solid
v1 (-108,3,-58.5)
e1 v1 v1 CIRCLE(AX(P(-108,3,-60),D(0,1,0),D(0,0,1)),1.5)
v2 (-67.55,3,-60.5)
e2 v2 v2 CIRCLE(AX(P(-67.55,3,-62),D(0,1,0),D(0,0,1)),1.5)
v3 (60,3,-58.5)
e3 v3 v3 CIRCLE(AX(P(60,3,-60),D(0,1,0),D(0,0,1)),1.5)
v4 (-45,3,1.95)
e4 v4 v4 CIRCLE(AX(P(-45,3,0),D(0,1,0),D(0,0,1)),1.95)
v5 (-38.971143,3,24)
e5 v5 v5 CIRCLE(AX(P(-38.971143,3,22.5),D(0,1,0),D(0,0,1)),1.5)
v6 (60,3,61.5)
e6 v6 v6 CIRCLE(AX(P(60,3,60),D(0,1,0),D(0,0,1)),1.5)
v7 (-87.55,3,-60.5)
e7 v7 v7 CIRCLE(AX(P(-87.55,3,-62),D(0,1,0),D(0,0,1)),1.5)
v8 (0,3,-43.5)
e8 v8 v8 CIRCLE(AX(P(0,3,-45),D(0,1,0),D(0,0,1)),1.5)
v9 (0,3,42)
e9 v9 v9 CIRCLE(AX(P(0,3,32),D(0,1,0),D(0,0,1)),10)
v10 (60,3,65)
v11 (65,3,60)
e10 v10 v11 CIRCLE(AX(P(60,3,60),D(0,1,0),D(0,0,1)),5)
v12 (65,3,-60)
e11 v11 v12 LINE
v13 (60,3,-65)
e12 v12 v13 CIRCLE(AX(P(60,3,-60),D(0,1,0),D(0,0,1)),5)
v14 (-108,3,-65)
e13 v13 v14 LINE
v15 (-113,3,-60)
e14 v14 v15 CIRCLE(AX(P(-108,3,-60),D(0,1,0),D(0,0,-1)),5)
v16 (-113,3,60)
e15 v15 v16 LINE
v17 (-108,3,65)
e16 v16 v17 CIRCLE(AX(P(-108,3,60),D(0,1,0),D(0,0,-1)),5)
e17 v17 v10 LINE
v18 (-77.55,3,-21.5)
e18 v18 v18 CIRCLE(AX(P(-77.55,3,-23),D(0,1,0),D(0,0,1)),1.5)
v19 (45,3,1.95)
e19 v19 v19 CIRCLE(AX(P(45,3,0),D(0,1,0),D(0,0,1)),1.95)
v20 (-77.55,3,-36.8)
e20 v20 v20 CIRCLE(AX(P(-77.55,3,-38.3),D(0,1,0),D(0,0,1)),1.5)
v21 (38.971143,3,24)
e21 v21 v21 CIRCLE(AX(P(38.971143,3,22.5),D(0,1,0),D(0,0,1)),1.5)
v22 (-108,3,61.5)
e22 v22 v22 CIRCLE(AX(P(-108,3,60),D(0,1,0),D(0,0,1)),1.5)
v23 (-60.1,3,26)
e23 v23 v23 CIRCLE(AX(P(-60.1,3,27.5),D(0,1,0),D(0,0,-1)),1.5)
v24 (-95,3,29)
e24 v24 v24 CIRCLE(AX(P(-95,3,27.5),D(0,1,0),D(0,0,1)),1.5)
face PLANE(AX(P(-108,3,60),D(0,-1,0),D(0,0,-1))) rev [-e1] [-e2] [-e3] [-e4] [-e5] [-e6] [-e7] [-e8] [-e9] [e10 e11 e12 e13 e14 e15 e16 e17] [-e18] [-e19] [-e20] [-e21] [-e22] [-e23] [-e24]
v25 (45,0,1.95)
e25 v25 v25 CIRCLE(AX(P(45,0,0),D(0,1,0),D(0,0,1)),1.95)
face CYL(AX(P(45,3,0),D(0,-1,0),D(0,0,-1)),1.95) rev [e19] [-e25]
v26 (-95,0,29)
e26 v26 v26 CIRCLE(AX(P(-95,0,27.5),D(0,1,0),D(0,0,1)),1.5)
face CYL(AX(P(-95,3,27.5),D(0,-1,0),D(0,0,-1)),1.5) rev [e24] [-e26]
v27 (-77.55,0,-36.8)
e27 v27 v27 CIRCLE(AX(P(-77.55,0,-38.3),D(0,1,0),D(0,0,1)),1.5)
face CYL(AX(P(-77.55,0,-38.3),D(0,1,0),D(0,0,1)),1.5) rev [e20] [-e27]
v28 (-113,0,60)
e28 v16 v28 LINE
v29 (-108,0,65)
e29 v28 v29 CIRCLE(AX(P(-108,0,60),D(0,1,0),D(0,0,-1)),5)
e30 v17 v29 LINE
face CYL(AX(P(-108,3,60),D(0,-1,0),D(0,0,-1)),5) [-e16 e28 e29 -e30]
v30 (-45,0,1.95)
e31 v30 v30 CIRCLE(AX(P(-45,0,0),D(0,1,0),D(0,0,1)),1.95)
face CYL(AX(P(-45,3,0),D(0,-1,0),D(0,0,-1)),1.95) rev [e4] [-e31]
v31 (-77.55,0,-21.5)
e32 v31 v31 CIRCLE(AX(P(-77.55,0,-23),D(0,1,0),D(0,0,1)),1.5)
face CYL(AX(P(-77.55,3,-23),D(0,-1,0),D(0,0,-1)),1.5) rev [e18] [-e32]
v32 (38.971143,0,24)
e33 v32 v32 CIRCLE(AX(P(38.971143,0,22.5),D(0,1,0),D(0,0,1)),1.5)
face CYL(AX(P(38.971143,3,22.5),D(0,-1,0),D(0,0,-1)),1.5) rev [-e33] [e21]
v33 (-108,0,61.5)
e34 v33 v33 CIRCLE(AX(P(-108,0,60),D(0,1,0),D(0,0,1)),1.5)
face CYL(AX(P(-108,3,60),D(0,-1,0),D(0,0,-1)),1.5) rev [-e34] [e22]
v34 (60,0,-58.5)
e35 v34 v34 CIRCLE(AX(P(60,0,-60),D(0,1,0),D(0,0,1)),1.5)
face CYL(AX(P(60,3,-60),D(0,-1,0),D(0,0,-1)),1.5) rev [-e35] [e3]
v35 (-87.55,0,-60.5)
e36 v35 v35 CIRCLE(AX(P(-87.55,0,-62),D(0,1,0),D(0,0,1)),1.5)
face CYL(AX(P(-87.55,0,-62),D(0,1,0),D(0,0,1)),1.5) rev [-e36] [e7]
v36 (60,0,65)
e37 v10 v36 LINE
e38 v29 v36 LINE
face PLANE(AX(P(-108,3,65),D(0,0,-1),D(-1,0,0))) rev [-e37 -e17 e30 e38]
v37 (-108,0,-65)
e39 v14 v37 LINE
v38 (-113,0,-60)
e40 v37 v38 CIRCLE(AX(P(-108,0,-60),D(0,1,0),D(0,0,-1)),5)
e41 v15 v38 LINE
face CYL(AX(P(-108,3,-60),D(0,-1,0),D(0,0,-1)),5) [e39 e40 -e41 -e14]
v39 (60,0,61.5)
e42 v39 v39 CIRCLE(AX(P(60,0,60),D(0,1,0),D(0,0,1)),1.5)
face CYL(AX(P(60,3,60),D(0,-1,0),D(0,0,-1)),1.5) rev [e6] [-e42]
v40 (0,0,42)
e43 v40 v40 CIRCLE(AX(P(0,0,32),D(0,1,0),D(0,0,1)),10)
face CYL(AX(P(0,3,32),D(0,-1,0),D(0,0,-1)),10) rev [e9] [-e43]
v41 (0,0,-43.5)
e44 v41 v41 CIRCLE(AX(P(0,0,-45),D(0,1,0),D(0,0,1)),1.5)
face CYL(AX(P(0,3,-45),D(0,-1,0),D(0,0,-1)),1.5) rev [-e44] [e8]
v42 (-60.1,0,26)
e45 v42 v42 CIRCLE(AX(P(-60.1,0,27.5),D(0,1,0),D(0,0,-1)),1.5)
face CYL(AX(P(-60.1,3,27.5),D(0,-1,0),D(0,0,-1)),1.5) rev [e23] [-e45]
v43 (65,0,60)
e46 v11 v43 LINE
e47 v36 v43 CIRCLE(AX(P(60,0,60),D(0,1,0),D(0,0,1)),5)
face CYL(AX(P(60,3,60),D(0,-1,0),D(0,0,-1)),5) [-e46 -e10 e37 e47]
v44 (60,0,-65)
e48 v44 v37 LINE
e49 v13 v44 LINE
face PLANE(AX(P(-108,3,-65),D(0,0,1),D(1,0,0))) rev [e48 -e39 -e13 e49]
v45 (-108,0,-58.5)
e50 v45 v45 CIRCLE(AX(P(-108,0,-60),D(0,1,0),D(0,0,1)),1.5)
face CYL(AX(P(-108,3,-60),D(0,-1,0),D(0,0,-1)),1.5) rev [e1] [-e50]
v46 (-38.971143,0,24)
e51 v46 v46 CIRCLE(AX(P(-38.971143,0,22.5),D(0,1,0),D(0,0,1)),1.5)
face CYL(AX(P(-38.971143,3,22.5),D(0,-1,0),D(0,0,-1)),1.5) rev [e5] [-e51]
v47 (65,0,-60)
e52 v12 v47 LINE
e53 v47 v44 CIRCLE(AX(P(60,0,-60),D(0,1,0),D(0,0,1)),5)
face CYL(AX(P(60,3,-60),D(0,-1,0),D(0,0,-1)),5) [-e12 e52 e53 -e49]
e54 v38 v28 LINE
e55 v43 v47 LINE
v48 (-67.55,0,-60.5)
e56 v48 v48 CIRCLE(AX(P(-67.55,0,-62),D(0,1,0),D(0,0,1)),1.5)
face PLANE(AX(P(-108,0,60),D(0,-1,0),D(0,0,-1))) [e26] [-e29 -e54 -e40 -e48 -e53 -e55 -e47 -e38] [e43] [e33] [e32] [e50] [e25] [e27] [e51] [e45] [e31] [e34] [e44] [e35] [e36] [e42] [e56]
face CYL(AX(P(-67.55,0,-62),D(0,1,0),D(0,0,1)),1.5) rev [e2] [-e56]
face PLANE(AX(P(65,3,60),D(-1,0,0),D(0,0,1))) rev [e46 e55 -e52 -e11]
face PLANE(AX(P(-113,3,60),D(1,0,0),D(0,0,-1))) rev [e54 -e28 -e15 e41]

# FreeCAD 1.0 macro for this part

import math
import FreeCAD as App
import Part
import Sketcher

V = App.Vector

doc = App.newDocument("Part")
body = doc.addObject("PartDesign::Body", "Body")

sketch1 = body.newObject("Sketcher::SketchObject", "Sketch")
sketch1.AttachmentSupport = (doc.getObject("XZ_Plane"), [""])
sketch1.MapMode = "FlatFace"
sketch1.addGeometry([
    Part.LineSegment(V(-108, 65, 0), V(60, 65, 0)),
    Part.ArcOfCircle(Part.Circle(V(60, 60, 0), V(0, 0, 1), 5), math.radians(0), math.radians(90)),
    Part.LineSegment(V(65, 60, 0), V(65, -60, 0)),
    Part.ArcOfCircle(Part.Circle(V(60, -60, 0), V(0, 0, 1), 5), math.radians(-90), math.radians(0)),
    Part.LineSegment(V(60, -65, 0), V(-108, -65, 0)),
    Part.ArcOfCircle(Part.Circle(V(-108, -60, 0), V(0, 0, 1), 5), math.radians(180), math.radians(270)),
    Part.LineSegment(V(-113, -60, 0), V(-113, 60, 0)),
    Part.ArcOfCircle(Part.Circle(V(-108, 60, 0), V(0, 0, 1), 5), math.radians(90), math.radians(180)),
    Part.Circle(V(-108, 60, 0), V(0, 0, 1), 1.5),
    Part.Circle(V(-95, 27.5, 0), V(0, 0, 1), 1.5),
    Part.Circle(V(-60.1, 27.5, 0), V(0, 0, 1), 1.5),
    Part.Circle(V(-39, 22.5, 0), V(0, 0, 1), 1.5),
    Part.Circle(V(0, 32, 0), V(0, 0, 1), 10),
    Part.Circle(V(60, 60, 0), V(0, 0, 1), 1.5),
    Part.Circle(V(39, 22.5, 0), V(0, 0, 1), 1.5),
    Part.Circle(V(-77.5, -23, 0), V(0, 0, 1), 1.5),
    Part.Circle(V(-45, 0, 0), V(0, 0, 1), 1.9),
    Part.Circle(V(-108, -60, 0), V(0, 0, 1), 1.5),
    Part.Circle(V(45, 0, 0), V(0, 0, 1), 1.9),
    Part.Circle(V(0, -45, 0), V(0, 0, 1), 1.5),
    Part.Circle(V(60, -60, 0), V(0, 0, 1), 1.5),
], False)
sketch1.addConstraint([
    Sketcher.Constraint("Tangent", 0, 2, 1, 2),
    Sketcher.Constraint("Tangent", 1, 1, 2, 1),
    Sketcher.Constraint("Tangent", 2, 2, 3, 2),
    Sketcher.Constraint("Tangent", 3, 1, 4, 1),
    Sketcher.Constraint("Tangent", 4, 2, 5, 2),
    Sketcher.Constraint("Tangent", 5, 1, 6, 1),
    Sketcher.Constraint("Tangent", 6, 2, 7, 2),
    Sketcher.Constraint("Tangent", 7, 1, 0, 1),
    Sketcher.Constraint("Horizontal", 0),
    Sketcher.Constraint("Vertical", 2),
    Sketcher.Constraint("Horizontal", 4),
    Sketcher.Constraint("Vertical", 6),
    Sketcher.Constraint("Coincident", 8, 3, 7, 3),
    Sketcher.Constraint("Coincident", 13, 3, 1, 3),
    Sketcher.Constraint("Coincident", 17, 3, 5, 3),
    Sketcher.Constraint("Coincident", 20, 3, 3, 3),
    Sketcher.Constraint("Equal", 1, 3),
    Sketcher.Constraint("Equal", 3, 5),
    Sketcher.Constraint("Equal", 5, 7),
    Sketcher.Constraint("Equal", 8, 9),
    Sketcher.Constraint("Equal", 9, 10),
    Sketcher.Constraint("Equal", 10, 11),
    Sketcher.Constraint("Equal", 11, 13),
    Sketcher.Constraint("Equal", 13, 14),
    Sketcher.Constraint("Equal", 14, 15),
    Sketcher.Constraint("Equal", 15, 17),
    Sketcher.Constraint("Equal", 16, 18),
    Sketcher.Constraint("Equal", 17, 19),
    Sketcher.Constraint("Equal", 19, 20),
    Sketcher.Constraint("Symmetric", 16, 3, 18, 3, -1, 1),
    Sketcher.Constraint("Symmetric", 11, 3, 14, 3, -2),
    Sketcher.Constraint("PointOnObject", 12, 3, -2),
    Sketcher.Constraint("PointOnObject", 16, 3, -1),
    Sketcher.Constraint("PointOnObject", 19, 3, -2),
    Sketcher.Constraint("Horizontal", 9, 3, 10, 3),
    Sketcher.Constraint("Diameter", 8, 3.0),
    Sketcher.Constraint("Diameter", 12, 20.0),
    Sketcher.Constraint("Radius", 1, 5.0),
    Sketcher.Constraint("Diameter", 16, 3.9),
    Sketcher.Constraint("DistanceX", 0, 1, 0, 2, 168.0),
    Sketcher.Constraint("DistanceY", 2, 2, 2, 1, 120.0),
    Sketcher.Constraint("DistanceX", -1, 1, 1, 3, 60.0),
    Sketcher.Constraint("DistanceY", -1, 1, 1, 3, 60.0),
    Sketcher.Constraint("DistanceX", 9, 3, -1, 1, 95.0),
    Sketcher.Constraint("DistanceY", -1, 1, 12, 3, 32.0),
    Sketcher.Constraint("DistanceY", 15, 3, -1, 1, 23.0),
    Sketcher.Constraint("DistanceX", 16, 3, -1, 1, 45.0),
    Sketcher.Constraint("DistanceY", 19, 3, -1, 1, 45.0),
    Sketcher.Constraint("DistanceY", 11, 3, 10, 3, 5.0),
    Sketcher.Constraint("DistanceY", -1, 1, 9, 3, 27.5),
    Sketcher.Constraint("DistanceX", 10, 3, -1, 1, 60.1),
    Sketcher.Constraint("DistanceX", 15, 3, -1, 1, 77.55),
    Sketcher.Constraint("DistanceX", 11, 3, -1, 1, 38.971143),
])
pad1 = body.newObject("PartDesign::Pad", "Pad")
pad1.Profile = sketch1
pad1.Length = 3
pad1.Reversed = True

sketch2 = body.newObject("Sketcher::SketchObject", "Sketch001")
sketch2.AttachmentSupport = (doc.getObject("XZ_Plane"), [""])
sketch2.MapMode = "FlatFace"
sketch2.AttachmentOffset = App.Placement(V(0, 0, -3), App.Rotation())
sketch2.addGeometry([
    Part.Circle(V(-87.5, -62, 0), V(0, 0, 1), 1.5),
    Part.Circle(V(-67.5, -62, 0), V(0, 0, 1), 1.5),
    Part.Circle(V(-77.5, -38.3, 0), V(0, 0, 1), 1.5),
], False)
sketch2.addConstraint([
    Sketcher.Constraint("Equal", 0, 1),
    Sketcher.Constraint("Equal", 1, 2),
    Sketcher.Constraint("Horizontal", 0, 3, 1, 3),
    Sketcher.Constraint("Diameter", 0, 3.0),
    Sketcher.Constraint("DistanceY", 0, 3, -1, 1, 62.0),
    Sketcher.Constraint("DistanceX", 0, 3, 1, 3, 20.0),
    Sketcher.Constraint("DistanceX", 0, 3, 2, 3, 10.0),
    Sketcher.Constraint("DistanceY", 2, 3, -1, 1, 38.3),
    Sketcher.Constraint("DistanceX", 0, 3, -1, 1, 87.55),
])
pocket1 = body.newObject("PartDesign::Pocket", "Pocket")
pocket1.Profile = sketch2
pocket1.Type = "ThroughAll"
pocket1.Reversed = True

doc.recompute()
